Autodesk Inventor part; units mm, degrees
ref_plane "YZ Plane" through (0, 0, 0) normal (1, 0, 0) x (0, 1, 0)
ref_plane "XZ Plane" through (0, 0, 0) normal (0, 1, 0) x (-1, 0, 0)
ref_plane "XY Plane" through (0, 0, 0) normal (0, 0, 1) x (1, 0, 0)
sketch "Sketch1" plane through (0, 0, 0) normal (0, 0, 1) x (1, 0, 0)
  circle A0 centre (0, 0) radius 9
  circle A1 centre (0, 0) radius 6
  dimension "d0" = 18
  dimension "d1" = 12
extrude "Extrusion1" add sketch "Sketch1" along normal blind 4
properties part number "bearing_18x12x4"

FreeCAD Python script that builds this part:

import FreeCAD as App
import Part
import Sketcher
from FreeCAD import Vector

doc = App.newDocument("Part")
body = doc.addObject("PartDesign::Body", "Body")

# Sketch on XY plane
sketch1 = body.newObject("Sketcher::SketchObject", "Sketch")
sketch1.AttachmentSupport = (doc.getObject("XY_Plane"), [""])
sketch1.MapMode = "FlatFace"
sketch1.addGeometry(Part.Circle(Vector(0, 0, 0), Vector(0, 0, 1), 9), False)
sketch1.addGeometry(Part.Circle(Vector(0, 0, 0), Vector(0, 0, 1), 6), False)
sketch1.addConstraint(Sketcher.Constraint("Coincident", 0, 3, -1, 1))
sketch1.addConstraint(Sketcher.Constraint("Coincident", 1, 3, -1, 1))
sketch1.addConstraint(Sketcher.Constraint("Diameter", 0, 18.0))
sketch1.addConstraint(Sketcher.Constraint("Diameter", 1, 12.0))
pad1 = body.newObject("PartDesign::Pad", "Pad")
pad1.Profile = sketch1
pad1.Length = 4

doc.recompute()
